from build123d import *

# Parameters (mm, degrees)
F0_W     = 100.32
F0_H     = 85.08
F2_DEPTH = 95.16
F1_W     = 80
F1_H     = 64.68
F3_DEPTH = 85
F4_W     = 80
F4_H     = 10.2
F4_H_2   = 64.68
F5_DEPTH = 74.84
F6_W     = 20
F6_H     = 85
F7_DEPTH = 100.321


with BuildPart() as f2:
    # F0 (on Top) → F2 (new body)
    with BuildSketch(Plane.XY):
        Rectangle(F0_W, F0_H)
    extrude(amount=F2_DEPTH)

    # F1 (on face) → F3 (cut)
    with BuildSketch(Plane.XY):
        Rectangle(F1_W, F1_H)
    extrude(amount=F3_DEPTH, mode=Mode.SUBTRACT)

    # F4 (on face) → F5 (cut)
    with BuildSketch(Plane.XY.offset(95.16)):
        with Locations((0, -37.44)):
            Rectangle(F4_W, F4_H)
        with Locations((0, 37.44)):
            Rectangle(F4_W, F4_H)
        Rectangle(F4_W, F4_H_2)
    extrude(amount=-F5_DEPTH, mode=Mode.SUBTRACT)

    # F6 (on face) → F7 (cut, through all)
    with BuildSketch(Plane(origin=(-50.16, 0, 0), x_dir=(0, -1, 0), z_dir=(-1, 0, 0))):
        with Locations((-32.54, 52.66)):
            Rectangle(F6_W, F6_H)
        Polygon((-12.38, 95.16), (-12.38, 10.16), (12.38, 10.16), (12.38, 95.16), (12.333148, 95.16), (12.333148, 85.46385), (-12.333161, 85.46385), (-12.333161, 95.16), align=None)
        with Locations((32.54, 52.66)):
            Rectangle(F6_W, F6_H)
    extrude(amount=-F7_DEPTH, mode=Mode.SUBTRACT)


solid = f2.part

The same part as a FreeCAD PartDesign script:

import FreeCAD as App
import Part
import Sketcher
Q = App.Units.Quantity


def add_polygon(sketch, points):
    """Adds a closed chain of lines whose ends are joined by coincident constraints."""
    first, n = sketch.GeometryCount, len(points)
    for a, b in zip(points, points[1:] + points[:1]):
        sketch.addGeometry(Part.LineSegment(App.Vector(*a, 0), App.Vector(*b, 0)), False)
    for i in range(n):
        sketch.addConstraint(Sketcher.Constraint("Coincident", first + i, 2, first + (i + 1) % n, 1))

doc = App.newDocument("Part")
body = doc.addObject("PartDesign::Body", "Body")
body.AllowCompound = True

# Sketch on XY plane
sketch1 = body.newObject("Sketcher::SketchObject", "Sketch")
sketch1.AttachmentSupport = (doc.getObject("XY_Plane"), [""])
sketch1.MapMode = "FlatFace"
add_polygon(sketch1, [(-50, 43), (-50, -43), (50, -43), (50, 43)])  # lines 0-3
sketch1.addConstraint([
    Sketcher.Constraint("Vertical", 0),
    Sketcher.Constraint("Horizontal", 1),
    Sketcher.Constraint("Vertical", 2),
    Sketcher.Constraint("Horizontal", 3),
    Sketcher.Constraint("Symmetric", 0, 2, 2, 2, -1, 1),
    Sketcher.Constraint("DistanceX", 1, 1, 1, 2, Q("100.32 mm")),
    Sketcher.Constraint("DistanceY", 0, 2, 0, 1, Q("85.08 mm")),
])
pad1 = body.newObject("PartDesign::Pad", "Pad")
pad1.Profile = sketch1
pad1.Length = 95.16

# Sketch on XY plane
sketch2 = body.newObject("Sketcher::SketchObject", "Sketch001")
sketch2.AttachmentSupport = (doc.getObject("XY_Plane"), [""])
sketch2.MapMode = "FlatFace"
add_polygon(sketch2, [(-40, 32), (-40, -32), (40, -32), (40, 32)])  # lines 0-3
sketch2.addConstraint([
    Sketcher.Constraint("Vertical", 0),
    Sketcher.Constraint("Horizontal", 1),
    Sketcher.Constraint("Vertical", 2),
    Sketcher.Constraint("Horizontal", 3),
    Sketcher.Constraint("Symmetric", 0, 2, 2, 2, -1, 1),
    Sketcher.Constraint("DistanceX", 1, 1, 1, 2, Q("80 mm")),
    Sketcher.Constraint("DistanceY", 0, 2, 0, 1, Q("64.68 mm")),
])
pocket1 = body.newObject("PartDesign::Pocket", "Pocket")
pocket1.Profile = sketch2
pocket1.Length = 85
pocket1.Reversed = True

# Sketch on XY plane
sketch3 = body.newObject("Sketcher::SketchObject", "Sketch002")
sketch3.AttachmentSupport = (doc.getObject("XY_Plane"), [""])
sketch3.MapMode = "FlatFace"
sketch3.AttachmentOffset = App.Placement(App.Vector(0, 0, 95.16), App.Rotation())
add_polygon(sketch3, [(-40, -43), (40, -43), (40, 43), (-40, 43)])  # lines 0-3
sketch3.addConstraint([
    Sketcher.Constraint("Horizontal", 0),
    Sketcher.Constraint("Vertical", 1),
    Sketcher.Constraint("Horizontal", 2),
    Sketcher.Constraint("Vertical", 3),
    Sketcher.Constraint("Symmetric", 0, 2, 2, 2, -1, 1),
    Sketcher.Constraint("DistanceX", 0, 1, 0, 2, Q("80 mm")),
    Sketcher.Constraint("DistanceY", 1, 1, 1, 2, Q("85.08 mm")),
])
pocket2 = body.newObject("PartDesign::Pocket", "Pocket001")
pocket2.Profile = sketch3
pocket2.Length = 74.84

# Sketch on YZ plane
sketch4 = body.newObject("Sketcher::SketchObject", "Sketch003")
sketch4.AttachmentSupport = (doc.getObject("YZ_Plane"), [""])
sketch4.MapMode = "FlatFace"
sketch4.AttachmentOffset = App.Placement(App.Vector(0, 0, -50.16), App.Rotation())
add_polygon(sketch4, [(42.54, 95.16), (42.54, 10.16), (22.54, 10.16), (22.54, 95.16)])  # lines 0-3
add_polygon(sketch4, [(12.38, 95.16), (12.38, 10.16), (-12.38, 10.16), (-12.38, 95.16), (-12.333, 95.16), (-12.333, 85.464), (12.333, 85.464), (12.333, 95.16)])  # lines 4-11
add_polygon(sketch4, [(-22.54, 95.16), (-22.54, 10.16), (-42.54, 10.16), (-42.54, 95.16)])  # lines 12-15
sketch4.addConstraint([
    Sketcher.Constraint("Vertical", 0),
    Sketcher.Constraint("Horizontal", 1),
    Sketcher.Constraint("Vertical", 2),
    Sketcher.Constraint("Horizontal", 3),
    Sketcher.Constraint("Vertical", 4),
    Sketcher.Constraint("Horizontal", 5),
    Sketcher.Constraint("Vertical", 6),
    Sketcher.Constraint("Horizontal", 7),
    Sketcher.Constraint("Vertical", 8),
    Sketcher.Constraint("Horizontal", 9),
    Sketcher.Constraint("Vertical", 10),
    Sketcher.Constraint("Horizontal", 11),
    Sketcher.Constraint("Vertical", 12),
    Sketcher.Constraint("Horizontal", 13),
    Sketcher.Constraint("Vertical", 14),
    Sketcher.Constraint("Horizontal", 15),
    Sketcher.Constraint("Symmetric", 6, 2, 11, 2, -2),
    Sketcher.Constraint("Symmetric", 1, 2, 12, 2, -2),
    Sketcher.Constraint("Symmetric", 3, 2, 14, 2, -2),
    Sketcher.Constraint("Horizontal", 1, 2, 4, 2),
    Sketcher.Constraint("Horizontal", 3, 2, 6, 2),
    Sketcher.Constraint("DistanceX", 1, 2, 1, 1, Q("20 mm")),
    Sketcher.Constraint("DistanceY", 0, 2, 0, 1, Q("85 mm")),
    Sketcher.Constraint("DistanceX", 5, 2, 5, 1, Q("24.76 mm")),
    Sketcher.Constraint("DistanceX", -1, 1, 0, 2, Q("42.54 mm")),
    Sketcher.Constraint("DistanceY", -1, 1, 0, 2, Q("10.16 mm")),
    Sketcher.Constraint("DistanceX", 9, 1, 9, 2, Q("24.666309 mm")),
    Sketcher.Constraint("DistanceX", 11, 1, 11, 2, Q("0.046839 mm")),
    Sketcher.Constraint("DistanceY", 8, 2, 8, 1, Q("9.69615 mm")),
])
pocket3 = body.newObject("PartDesign::Pocket", "Pocket002")
pocket3.Profile = sketch4
pocket3.Type = "ThroughAll"
pocket3.Reversed = True

doc.recompute()
